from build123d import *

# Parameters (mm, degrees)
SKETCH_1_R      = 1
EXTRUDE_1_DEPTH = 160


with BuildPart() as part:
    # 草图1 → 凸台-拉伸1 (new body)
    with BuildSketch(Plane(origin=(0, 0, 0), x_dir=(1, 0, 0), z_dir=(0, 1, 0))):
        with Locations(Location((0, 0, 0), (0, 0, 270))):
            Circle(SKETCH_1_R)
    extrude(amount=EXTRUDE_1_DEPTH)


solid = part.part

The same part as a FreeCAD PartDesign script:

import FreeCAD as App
import Part
import Sketcher
Q = App.Units.Quantity

doc = App.newDocument("Part")
body = doc.addObject("PartDesign::Body", "Body")

# Sketch on XZ plane
sketch1 = body.newObject("Sketcher::SketchObject", "Sketch")
sketch1.AttachmentSupport = (doc.getObject("XZ_Plane"), [""])
sketch1.MapMode = "FlatFace"
sketch1.addGeometry(Part.Circle(App.Vector(0, 0, 0), App.Vector(0, 0, 1), 1), False)
sketch1.addConstraint(Sketcher.Constraint("Coincident", 0, 3, -1, 1))
sketch1.addConstraint(Sketcher.Constraint("Diameter", 0, Q("2 mm")))
pad1 = body.newObject("PartDesign::Pad", "Pad")
pad1.Profile = sketch1
pad1.Length = 160
pad1.Reversed = True

doc.recompute()
